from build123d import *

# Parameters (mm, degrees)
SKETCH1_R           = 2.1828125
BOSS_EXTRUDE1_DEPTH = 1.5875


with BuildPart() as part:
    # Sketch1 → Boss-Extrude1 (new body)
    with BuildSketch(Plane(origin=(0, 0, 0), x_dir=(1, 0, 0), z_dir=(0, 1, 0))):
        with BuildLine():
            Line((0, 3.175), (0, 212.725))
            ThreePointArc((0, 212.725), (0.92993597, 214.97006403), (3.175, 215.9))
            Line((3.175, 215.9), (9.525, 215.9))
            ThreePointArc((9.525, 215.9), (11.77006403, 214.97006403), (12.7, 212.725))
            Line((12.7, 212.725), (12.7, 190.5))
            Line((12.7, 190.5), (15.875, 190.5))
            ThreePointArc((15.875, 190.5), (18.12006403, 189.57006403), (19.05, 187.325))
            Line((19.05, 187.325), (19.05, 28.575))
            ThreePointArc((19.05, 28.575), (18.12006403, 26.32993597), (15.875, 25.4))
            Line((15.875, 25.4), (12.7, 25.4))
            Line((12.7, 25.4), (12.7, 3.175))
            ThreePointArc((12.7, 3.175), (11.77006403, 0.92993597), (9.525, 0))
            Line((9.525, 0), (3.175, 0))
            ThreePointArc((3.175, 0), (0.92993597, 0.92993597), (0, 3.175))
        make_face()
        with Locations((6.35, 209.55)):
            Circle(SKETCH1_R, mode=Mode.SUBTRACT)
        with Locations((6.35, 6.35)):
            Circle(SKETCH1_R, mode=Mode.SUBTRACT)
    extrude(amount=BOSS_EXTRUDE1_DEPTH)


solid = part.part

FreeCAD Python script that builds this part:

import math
import FreeCAD as App
import Part
import Sketcher

V = App.Vector
Q = App.Units.Quantity

doc = App.newDocument("Part")
params = doc.addObject("Spreadsheet::Sheet", "Params")
for row, (alias, value) in enumerate([
    ("sketch1_diameter", "0.171875 in"),
    ("sketch1_radius", "0.125 in"),
    ("sketch1_width", "0.25 in"),
    ("sketch1_height", "8.25 in"),
    ("pad1_length", "0.0625 in"),
], start=1):
    params.set(f"A{row}", alias)
    params.set(f"B{row}", "=" + value)
    params.setAlias(f"B{row}", alias)

body = doc.addObject("PartDesign::Body", "Body")

# Sketch on XZ plane
sketch1 = body.newObject("Sketcher::SketchObject", "Sketch")
sketch1.AttachmentSupport = (doc.getObject("XZ_Plane"), [""])
sketch1.MapMode = "FlatFace"
sketch1.addGeometry(Part.LineSegment(V(0, -212.7, 0), V(0, -3.2, 0)), False)
sketch1.addGeometry(Part.ArcOfCircle(Part.Circle(V(3.2, -3.2, 0), V(0, 0, 1), 3.2), math.radians(90), math.radians(180)), False)
sketch1.addGeometry(Part.LineSegment(V(3.2, 0, 0), V(9.5, 0, 0)), False)
sketch1.addGeometry(Part.ArcOfCircle(Part.Circle(V(9.5, -3.2, 0), V(0, 0, 1), 3.2), math.radians(0), math.radians(90)), False)
sketch1.addGeometry(Part.LineSegment(V(12.7, -3.2, 0), V(12.7, -25.4, 0)), False)
sketch1.addGeometry(Part.LineSegment(V(12.7, -25.4, 0), V(15.9, -25.4, 0)), False)
sketch1.addGeometry(Part.ArcOfCircle(Part.Circle(V(15.9, -28.6, 0), V(0, 0, 1), 3.2), math.radians(0), math.radians(90)), False)
sketch1.addGeometry(Part.LineSegment(V(19.1, -28.6, 0), V(19.1, -187.3, 0)), False)
sketch1.addGeometry(Part.ArcOfCircle(Part.Circle(V(15.9, -187.3, 0), V(0, 0, 1), 3.2), math.radians(-90), math.radians(0)), False)
sketch1.addGeometry(Part.LineSegment(V(15.9, -190.5, 0), V(12.7, -190.5, 0)), False)
sketch1.addGeometry(Part.LineSegment(V(12.7, -190.5, 0), V(12.7, -212.7, 0)), False)
sketch1.addGeometry(Part.ArcOfCircle(Part.Circle(V(9.5, -212.7, 0), V(0, 0, 1), 3.2), math.radians(-90), math.radians(0)), False)
sketch1.addGeometry(Part.LineSegment(V(9.5, -215.9, 0), V(3.2, -215.9, 0)), False)
sketch1.addGeometry(Part.ArcOfCircle(Part.Circle(V(3.2, -212.7, 0), V(0, 0, 1), 3.2), math.radians(-180), math.radians(-90)), False)
sketch1.addGeometry(Part.Circle(V(6.3, -6.3, 0), V(0, 0, 1), 2.2), False)
sketch1.addGeometry(Part.Circle(V(6.3, -209.6, 0), V(0, 0, 1), 2.2), False)
sketch1.addConstraint(Sketcher.Constraint("Tangent", 0, 2, 1, 2))
sketch1.addConstraint(Sketcher.Constraint("Tangent", 1, 1, 2, 1))
sketch1.addConstraint(Sketcher.Constraint("Tangent", 2, 2, 3, 2))
sketch1.addConstraint(Sketcher.Constraint("Tangent", 3, 1, 4, 1))
sketch1.addConstraint(Sketcher.Constraint("Coincident", 4, 2, 5, 1))
sketch1.addConstraint(Sketcher.Constraint("Tangent", 5, 2, 6, 2))
sketch1.addConstraint(Sketcher.Constraint("Tangent", 6, 1, 7, 1))
sketch1.addConstraint(Sketcher.Constraint("Tangent", 7, 2, 8, 2))
sketch1.addConstraint(Sketcher.Constraint("Tangent", 8, 1, 9, 1))
sketch1.addConstraint(Sketcher.Constraint("Coincident", 9, 2, 10, 1))
sketch1.addConstraint(Sketcher.Constraint("Tangent", 10, 2, 11, 2))
sketch1.addConstraint(Sketcher.Constraint("Tangent", 11, 1, 12, 1))
sketch1.addConstraint(Sketcher.Constraint("Tangent", 12, 2, 13, 2))
sketch1.addConstraint(Sketcher.Constraint("Tangent", 13, 1, 0, 1))
sketch1.addConstraint(Sketcher.Constraint("Vertical", 0))
sketch1.addConstraint(Sketcher.Constraint("Horizontal", 2))
sketch1.addConstraint(Sketcher.Constraint("Vertical", 4))
sketch1.addConstraint(Sketcher.Constraint("Horizontal", 5))
sketch1.addConstraint(Sketcher.Constraint("Vertical", 7))
sketch1.addConstraint(Sketcher.Constraint("Horizontal", 9))
sketch1.addConstraint(Sketcher.Constraint("Vertical", 10))
sketch1.addConstraint(Sketcher.Constraint("Horizontal", 12))
sketch1.addConstraint(Sketcher.Constraint("Equal", 1, 3))
sketch1.addConstraint(Sketcher.Constraint("Equal", 3, 6))
sketch1.addConstraint(Sketcher.Constraint("Equal", 6, 8))
sketch1.addConstraint(Sketcher.Constraint("Equal", 8, 11))
sketch1.addConstraint(Sketcher.Constraint("Equal", 11, 13))
sketch1.addConstraint(Sketcher.Constraint("Equal", 14, 15))
sketch1.addConstraint(Sketcher.Constraint("PointOnObject", 0, 2, -2))
sketch1.addConstraint(Sketcher.Constraint("PointOnObject", 1, 1, -1))
sketch1.addConstraint(Sketcher.Constraint("Vertical", 3, 3, 11, 3))
sketch1.addConstraint(Sketcher.Constraint("Vertical", 14, 3, 15, 3))
sketch1.addConstraint(Sketcher.Constraint("Equal", 4, 10))
sketch1.addConstraint(Sketcher.Constraint("Diameter", 14, Q("0.171875 in")))
sketch1.addConstraint(Sketcher.Constraint("DistanceY", 4, 2, -1, 1, Q("1 in")))
sketch1.addConstraint(Sketcher.Constraint("Radius", 1, Q("0.125 in")))
sketch1.addConstraint(Sketcher.Constraint("DistanceY", 15, 3, 14, 3, Q("8 in")))
sketch1.addConstraint(Sketcher.Constraint("DistanceX", 2, 1, 2, 2, Q("0.25 in")))
sketch1.addConstraint(Sketcher.Constraint("DistanceY", 0, 1, 0, 2, Q("8.25 in")))
sketch1.addConstraint(Sketcher.Constraint("DistanceX", 1, 3, 6, 3, Q("0.5 in")))
sketch1.addConstraint(Sketcher.Constraint("DistanceX", 14, 3, 6, 1, Q("0.5 in")))
sketch1.addConstraint(Sketcher.Constraint("DistanceY", 14, 3, -1, 1, Q("0.25 in")))
sketch1.setExpression("Constraints[33]", "Params.sketch1_diameter")
sketch1.setExpression("Constraints[35]", "Params.sketch1_radius")
sketch1.setExpression("Constraints[37]", "Params.sketch1_width")
sketch1.setExpression("Constraints[38]", "Params.sketch1_height")
pad1 = body.newObject("PartDesign::Pad", "Pad")
pad1.Profile = sketch1
pad1.setExpression("Length", "Params.pad1_length")
pad1.Reversed = True

doc.recompute()
